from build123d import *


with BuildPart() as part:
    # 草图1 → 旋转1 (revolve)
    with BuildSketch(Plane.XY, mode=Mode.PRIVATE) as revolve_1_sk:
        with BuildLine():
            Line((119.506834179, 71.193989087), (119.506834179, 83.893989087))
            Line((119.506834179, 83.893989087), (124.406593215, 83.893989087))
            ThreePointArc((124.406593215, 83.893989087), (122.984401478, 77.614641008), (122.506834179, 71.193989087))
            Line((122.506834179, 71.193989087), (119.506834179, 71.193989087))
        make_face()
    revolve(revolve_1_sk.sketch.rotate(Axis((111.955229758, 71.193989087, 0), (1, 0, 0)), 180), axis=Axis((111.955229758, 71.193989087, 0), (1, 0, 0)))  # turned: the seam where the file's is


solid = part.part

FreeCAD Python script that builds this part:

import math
import FreeCAD as App
import Part
import Sketcher

V = App.Vector
Q = App.Units.Quantity

doc = App.newDocument("Part")
body = doc.addObject("PartDesign::Body", "Body")

# Sketch on XY plane
sketch1 = doc.addObject("Sketcher::SketchObject", "Sketch")
body.addObject(sketch1)
sketch1.AttachmentSupport = (doc.XY_Plane, [""])
sketch1.MapMode = "FlatFace"
sketch1.addGeometry(Part.LineSegment(V(119.5, 83.9, 0), V(119.5, 71.2, 0)), False)
sketch1.addGeometry(Part.LineSegment(V(119.5, 71.2, 0), V(122.5, 71.2, 0)), False)
sketch1.addGeometry(Part.ArcOfCircle(Part.Circle(V(165.9, 71.2, 0), V(0, 0, 1), 43.4), math.radians(162.98), math.radians(180)), False)
sketch1.addGeometry(Part.LineSegment(V(124.4, 83.9, 0), V(119.5, 83.9, 0)), False)
sketch1.addGeometry(Part.LineSegment(V(119.5, 71.2, 0), V(165.9, 71.2, 0)), True)  # axis
sketch1.addConstraint(Sketcher.Constraint("Coincident", 0, 2, 1, 1))
sketch1.addConstraint(Sketcher.Constraint("Coincident", 1, 2, 2, 2))
sketch1.addConstraint(Sketcher.Constraint("Coincident", 2, 1, 3, 1))
sketch1.addConstraint(Sketcher.Constraint("Coincident", 3, 2, 0, 1))
sketch1.addConstraint(Sketcher.Constraint("Vertical", 0))
sketch1.addConstraint(Sketcher.Constraint("Horizontal", 1))
sketch1.addConstraint(Sketcher.Constraint("Horizontal", 3))
sketch1.addConstraint(Sketcher.Constraint("Horizontal", 4))
sketch1.addConstraint(Sketcher.Constraint("Coincident", 4, 1, 0, 2))
sketch1.addConstraint(Sketcher.Constraint("Coincident", 4, 2, 2, 3))
sketch1.addConstraint(Sketcher.Constraint("Radius", 2, Q("43.4 mm")))
sketch1.addConstraint(Sketcher.Constraint("DistanceX", 1, 1, 1, 2, Q("3 mm")))
sketch1.addConstraint(Sketcher.Constraint("DistanceY", 0, 2, 0, 1, Q("12.7 mm")))
sketch1.addConstraint(Sketcher.Constraint("DistanceY", -1, 1, 2, 3, Q("71.193989 mm")))
sketch1.addConstraint(Sketcher.Constraint("DistanceX", -1, 1, 2, 3, Q("165.906834 mm")))
revolution = doc.addObject("PartDesign::Revolution", "Revolution")
body.addObject(revolution)
revolution.Profile = sketch1
revolution.ReferenceAxis = (sketch1, ["Axis0"])
revolution.Angle = 360

doc.recompute()
